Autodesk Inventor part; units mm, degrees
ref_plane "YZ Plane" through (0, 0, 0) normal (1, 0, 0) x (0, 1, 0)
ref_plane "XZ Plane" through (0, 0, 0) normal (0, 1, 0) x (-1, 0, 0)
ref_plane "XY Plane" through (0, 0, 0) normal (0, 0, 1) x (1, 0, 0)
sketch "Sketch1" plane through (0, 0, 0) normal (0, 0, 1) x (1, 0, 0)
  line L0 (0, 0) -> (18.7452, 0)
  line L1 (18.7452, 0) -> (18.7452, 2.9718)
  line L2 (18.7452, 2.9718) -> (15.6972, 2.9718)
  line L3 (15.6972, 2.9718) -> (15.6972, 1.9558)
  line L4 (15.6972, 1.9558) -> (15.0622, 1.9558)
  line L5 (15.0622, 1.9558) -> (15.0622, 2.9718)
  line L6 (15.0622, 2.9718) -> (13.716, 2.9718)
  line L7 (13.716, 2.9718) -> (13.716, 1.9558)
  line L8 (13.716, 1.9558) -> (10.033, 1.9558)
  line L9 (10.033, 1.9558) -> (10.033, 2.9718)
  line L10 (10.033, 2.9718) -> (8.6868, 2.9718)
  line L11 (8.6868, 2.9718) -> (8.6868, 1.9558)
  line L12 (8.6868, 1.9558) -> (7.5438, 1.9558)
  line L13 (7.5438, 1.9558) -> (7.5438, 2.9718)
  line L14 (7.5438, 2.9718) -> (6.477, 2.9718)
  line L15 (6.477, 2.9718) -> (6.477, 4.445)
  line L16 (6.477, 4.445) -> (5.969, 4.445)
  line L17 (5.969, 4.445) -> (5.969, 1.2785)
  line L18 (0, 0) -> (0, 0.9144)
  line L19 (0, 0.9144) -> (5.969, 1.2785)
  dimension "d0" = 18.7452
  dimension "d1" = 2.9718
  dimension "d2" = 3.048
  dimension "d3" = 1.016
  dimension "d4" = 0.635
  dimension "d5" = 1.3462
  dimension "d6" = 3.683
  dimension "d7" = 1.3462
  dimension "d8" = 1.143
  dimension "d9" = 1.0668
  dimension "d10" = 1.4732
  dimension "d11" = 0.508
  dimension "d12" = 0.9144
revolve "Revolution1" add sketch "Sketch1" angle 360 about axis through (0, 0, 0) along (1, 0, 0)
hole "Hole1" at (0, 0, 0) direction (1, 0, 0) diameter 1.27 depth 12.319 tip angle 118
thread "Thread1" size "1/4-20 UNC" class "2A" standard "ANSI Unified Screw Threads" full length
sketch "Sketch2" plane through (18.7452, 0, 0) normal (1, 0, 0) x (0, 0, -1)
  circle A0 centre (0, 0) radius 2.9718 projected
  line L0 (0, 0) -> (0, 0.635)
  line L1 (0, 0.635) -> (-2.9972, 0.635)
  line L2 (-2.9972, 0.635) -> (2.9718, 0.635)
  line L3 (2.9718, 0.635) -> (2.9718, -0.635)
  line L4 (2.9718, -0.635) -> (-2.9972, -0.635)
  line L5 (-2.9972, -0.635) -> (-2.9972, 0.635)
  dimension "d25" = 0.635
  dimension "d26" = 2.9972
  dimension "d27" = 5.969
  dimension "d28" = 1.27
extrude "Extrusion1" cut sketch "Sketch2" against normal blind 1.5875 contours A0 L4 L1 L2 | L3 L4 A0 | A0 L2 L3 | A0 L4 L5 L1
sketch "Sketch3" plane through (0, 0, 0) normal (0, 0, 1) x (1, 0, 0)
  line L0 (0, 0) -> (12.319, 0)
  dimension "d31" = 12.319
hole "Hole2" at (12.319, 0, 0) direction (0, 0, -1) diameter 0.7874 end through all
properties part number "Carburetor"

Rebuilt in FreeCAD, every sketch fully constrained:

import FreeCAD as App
import Part
import Sketcher
Q = App.Units.Quantity


def add_polygon(sketch, points):
    """Adds a closed chain of lines whose ends are joined by coincident constraints."""
    first, n = sketch.GeometryCount, len(points)
    for a, b in zip(points, points[1:] + points[:1]):
        sketch.addGeometry(Part.LineSegment(App.Vector(*a, 0), App.Vector(*b, 0)), False)
    for i in range(n):
        sketch.addConstraint(Sketcher.Constraint("Coincident", first + i, 2, first + (i + 1) % n, 1))

doc = App.newDocument("Part")
body = doc.addObject("PartDesign::Body", "Body")

# Sketch on XY plane
sketch1 = doc.addObject("Sketcher::SketchObject", "Sketch")
body.addObject(sketch1)
sketch1.AttachmentSupport = (doc.XY_Plane, [""])
sketch1.MapMode = "FlatFace"
add_polygon(sketch1, [(0, 0.9), (0, 0), (18.7, 0), (18.7, 3), (15.7, 3), (15.7, 2), (15.1, 2), (15.1, 3), (13.7, 3), (13.7, 2), (10, 2), (10, 3), (8.7, 3), (8.7, 2), (7.5, 2), (7.5, 3), (6.5, 3), (6.5, 4.4), (6, 4.4), (6, 1.3)])  # lines 0-19
sketch1.addConstraint(Sketcher.Constraint("Vertical", 0))
sketch1.addConstraint(Sketcher.Constraint("Horizontal", 1))
sketch1.addConstraint(Sketcher.Constraint("Vertical", 2))
sketch1.addConstraint(Sketcher.Constraint("Horizontal", 3))
sketch1.addConstraint(Sketcher.Constraint("Vertical", 4))
sketch1.addConstraint(Sketcher.Constraint("Horizontal", 5))
sketch1.addConstraint(Sketcher.Constraint("Vertical", 6))
sketch1.addConstraint(Sketcher.Constraint("Horizontal", 7))
sketch1.addConstraint(Sketcher.Constraint("Vertical", 8))
sketch1.addConstraint(Sketcher.Constraint("Horizontal", 9))
sketch1.addConstraint(Sketcher.Constraint("Vertical", 10))
sketch1.addConstraint(Sketcher.Constraint("Horizontal", 11))
sketch1.addConstraint(Sketcher.Constraint("Vertical", 12))
sketch1.addConstraint(Sketcher.Constraint("Horizontal", 13))
sketch1.addConstraint(Sketcher.Constraint("Vertical", 14))
sketch1.addConstraint(Sketcher.Constraint("Horizontal", 15))
sketch1.addConstraint(Sketcher.Constraint("Vertical", 16))
sketch1.addConstraint(Sketcher.Constraint("Horizontal", 17))
sketch1.addConstraint(Sketcher.Constraint("Vertical", 18))
sketch1.addConstraint(Sketcher.Constraint("Coincident", 0, 2, -1, 1))
sketch1.addConstraint(Sketcher.Constraint("Horizontal", 3, 2, 6, 2))
sketch1.addConstraint(Sketcher.Constraint("Horizontal", 5, 2, 8, 2))
sketch1.addConstraint(Sketcher.Constraint("Horizontal", 7, 2, 10, 2))
sketch1.addConstraint(Sketcher.Constraint("Horizontal", 9, 2, 12, 2))
sketch1.addConstraint(Sketcher.Constraint("Horizontal", 11, 2, 14, 2))
sketch1.addConstraint(Sketcher.Constraint("Equal", 7, 11))
sketch1.addConstraint(Sketcher.Constraint("DistanceX", 3, 2, 3, 1, Q("0.12 in")))
sketch1.addConstraint(Sketcher.Constraint("DistanceX", 17, 2, 17, 1, Q("0.02 in")))
sketch1.addConstraint(Sketcher.Constraint("DistanceY", 4, 2, 4, 1, Q("0.04 in")))
sketch1.addConstraint(Sketcher.Constraint("DistanceX", 1, 1, 1, 2, Q("0.738 in")))
sketch1.addConstraint(Sketcher.Constraint("DistanceX", 5, 2, 5, 1, Q("0.025 in")))
sketch1.addConstraint(Sketcher.Constraint("DistanceX", 7, 2, 7, 1, Q("0.053 in")))
sketch1.addConstraint(Sketcher.Constraint("DistanceX", 9, 2, 9, 1, Q("0.145 in")))
sketch1.addConstraint(Sketcher.Constraint("DistanceX", 13, 2, 13, 1, Q("0.045 in")))
sketch1.addConstraint(Sketcher.Constraint("DistanceX", 15, 2, 15, 1, Q("0.042 in")))
sketch1.addConstraint(Sketcher.Constraint("DistanceY", 0, 2, 0, 1, Q("0.036 in")))
sketch1.addConstraint(Sketcher.Constraint("DistanceY", 2, 1, 2, 2, Q("0.117 in")))
sketch1.addConstraint(Sketcher.Constraint("DistanceY", 16, 1, 16, 2, Q("0.058 in")))
sketch1.addConstraint(Sketcher.Constraint("Angle", 19, Q("-176.5094 deg")))
revolution = doc.addObject("PartDesign::Revolution", "Revolution")
body.addObject(revolution)
revolution.Profile = sketch1
revolution.ReferenceAxis = (sketch1, ["H_Axis"])
revolution.Angle = 360

# Sketch on YZ plane
sketch2 = doc.addObject("Sketcher::SketchObject", "Sketch001")
body.addObject(sketch2)
sketch2.AttachmentSupport = (doc.YZ_Plane, [""])
sketch2.MapMode = "FlatFace"
sketch2.addGeometry(Part.Circle(App.Vector(0, 0, 0), App.Vector(0, 0, 1), 0.6), False)
sketch2.addConstraint(Sketcher.Constraint("Coincident", 0, 3, -1, 1))
sketch2.addConstraint(Sketcher.Constraint("Diameter", 0, Q("0.05 in")))
doc.recompute()
hole = doc.addObject("PartDesign::Hole", "Hole")
body.addObject(hole)
hole.Profile = sketch2
hole.ThreadType = "None"
hole.Diameter = Q("0.05 in")
hole.DepthType = "Dimension"
hole.Depth = Q("0.485 in")
hole.DrillPoint = "Angled"
hole.DrillPointAngle = 118
hole.Reversed = True

# Sketch on YZ plane
sketch3 = doc.addObject("Sketcher::SketchObject", "Sketch002")
body.addObject(sketch3)
sketch3.AttachmentSupport = (doc.YZ_Plane, [""])
sketch3.MapMode = "FlatFace"
sketch3.AttachmentOffset = App.Placement(App.Vector(0, 0, 0.738 * 25.4), App.Rotation())
add_polygon(sketch3, [(-0.6, -3), (0.6, -3), (0.6, 3), (-0.6, 3)])  # lines 0-3
sketch3.addConstraint(Sketcher.Constraint("Horizontal", 0))
sketch3.addConstraint(Sketcher.Constraint("Vertical", 1))
sketch3.addConstraint(Sketcher.Constraint("Horizontal", 2))
sketch3.addConstraint(Sketcher.Constraint("Vertical", 3))
sketch3.addConstraint(Sketcher.Constraint("DistanceX", 0, 1, 0, 2, Q("0.05 in")))
sketch3.addConstraint(Sketcher.Constraint("DistanceY", 1, 1, 1, 2, Q("0.235 in")))
sketch3.addConstraint(Sketcher.Constraint("DistanceX", -1, 1, 0, 2, Q("0.025 in")))
sketch3.addConstraint(Sketcher.Constraint("DistanceY", -1, 1, 1, 2, Q("0.118 in")))
pocket1 = doc.addObject("PartDesign::Pocket", "Pocket")
body.addObject(pocket1)
pocket1.Profile = sketch3
pocket1.Length = Q("0.0625 in")

# Sketch on XY plane
sketch4 = doc.addObject("Sketcher::SketchObject", "Sketch003")
body.addObject(sketch4)
sketch4.AttachmentSupport = (doc.XY_Plane, [""])
sketch4.MapMode = "FlatFace"
sketch4.addGeometry(Part.Circle(App.Vector(12.32, 0, 0), App.Vector(0, 0, 1), 0.39), False)
sketch4.addConstraint(Sketcher.Constraint("PointOnObject", 0, 3, -1))
sketch4.addConstraint(Sketcher.Constraint("Diameter", 0, Q("0.031 in")))
sketch4.addConstraint(Sketcher.Constraint("DistanceX", -1, 1, 0, 3, Q("0.485 in")))
doc.recompute()
hole2 = doc.addObject("PartDesign::Hole", "Hole001")
body.addObject(hole2)
hole2.Profile = sketch4
hole2.ThreadType = "None"
hole2.Diameter = Q("0.031 in")
hole2.DepthType = "ThroughAll"

doc.recompute()
